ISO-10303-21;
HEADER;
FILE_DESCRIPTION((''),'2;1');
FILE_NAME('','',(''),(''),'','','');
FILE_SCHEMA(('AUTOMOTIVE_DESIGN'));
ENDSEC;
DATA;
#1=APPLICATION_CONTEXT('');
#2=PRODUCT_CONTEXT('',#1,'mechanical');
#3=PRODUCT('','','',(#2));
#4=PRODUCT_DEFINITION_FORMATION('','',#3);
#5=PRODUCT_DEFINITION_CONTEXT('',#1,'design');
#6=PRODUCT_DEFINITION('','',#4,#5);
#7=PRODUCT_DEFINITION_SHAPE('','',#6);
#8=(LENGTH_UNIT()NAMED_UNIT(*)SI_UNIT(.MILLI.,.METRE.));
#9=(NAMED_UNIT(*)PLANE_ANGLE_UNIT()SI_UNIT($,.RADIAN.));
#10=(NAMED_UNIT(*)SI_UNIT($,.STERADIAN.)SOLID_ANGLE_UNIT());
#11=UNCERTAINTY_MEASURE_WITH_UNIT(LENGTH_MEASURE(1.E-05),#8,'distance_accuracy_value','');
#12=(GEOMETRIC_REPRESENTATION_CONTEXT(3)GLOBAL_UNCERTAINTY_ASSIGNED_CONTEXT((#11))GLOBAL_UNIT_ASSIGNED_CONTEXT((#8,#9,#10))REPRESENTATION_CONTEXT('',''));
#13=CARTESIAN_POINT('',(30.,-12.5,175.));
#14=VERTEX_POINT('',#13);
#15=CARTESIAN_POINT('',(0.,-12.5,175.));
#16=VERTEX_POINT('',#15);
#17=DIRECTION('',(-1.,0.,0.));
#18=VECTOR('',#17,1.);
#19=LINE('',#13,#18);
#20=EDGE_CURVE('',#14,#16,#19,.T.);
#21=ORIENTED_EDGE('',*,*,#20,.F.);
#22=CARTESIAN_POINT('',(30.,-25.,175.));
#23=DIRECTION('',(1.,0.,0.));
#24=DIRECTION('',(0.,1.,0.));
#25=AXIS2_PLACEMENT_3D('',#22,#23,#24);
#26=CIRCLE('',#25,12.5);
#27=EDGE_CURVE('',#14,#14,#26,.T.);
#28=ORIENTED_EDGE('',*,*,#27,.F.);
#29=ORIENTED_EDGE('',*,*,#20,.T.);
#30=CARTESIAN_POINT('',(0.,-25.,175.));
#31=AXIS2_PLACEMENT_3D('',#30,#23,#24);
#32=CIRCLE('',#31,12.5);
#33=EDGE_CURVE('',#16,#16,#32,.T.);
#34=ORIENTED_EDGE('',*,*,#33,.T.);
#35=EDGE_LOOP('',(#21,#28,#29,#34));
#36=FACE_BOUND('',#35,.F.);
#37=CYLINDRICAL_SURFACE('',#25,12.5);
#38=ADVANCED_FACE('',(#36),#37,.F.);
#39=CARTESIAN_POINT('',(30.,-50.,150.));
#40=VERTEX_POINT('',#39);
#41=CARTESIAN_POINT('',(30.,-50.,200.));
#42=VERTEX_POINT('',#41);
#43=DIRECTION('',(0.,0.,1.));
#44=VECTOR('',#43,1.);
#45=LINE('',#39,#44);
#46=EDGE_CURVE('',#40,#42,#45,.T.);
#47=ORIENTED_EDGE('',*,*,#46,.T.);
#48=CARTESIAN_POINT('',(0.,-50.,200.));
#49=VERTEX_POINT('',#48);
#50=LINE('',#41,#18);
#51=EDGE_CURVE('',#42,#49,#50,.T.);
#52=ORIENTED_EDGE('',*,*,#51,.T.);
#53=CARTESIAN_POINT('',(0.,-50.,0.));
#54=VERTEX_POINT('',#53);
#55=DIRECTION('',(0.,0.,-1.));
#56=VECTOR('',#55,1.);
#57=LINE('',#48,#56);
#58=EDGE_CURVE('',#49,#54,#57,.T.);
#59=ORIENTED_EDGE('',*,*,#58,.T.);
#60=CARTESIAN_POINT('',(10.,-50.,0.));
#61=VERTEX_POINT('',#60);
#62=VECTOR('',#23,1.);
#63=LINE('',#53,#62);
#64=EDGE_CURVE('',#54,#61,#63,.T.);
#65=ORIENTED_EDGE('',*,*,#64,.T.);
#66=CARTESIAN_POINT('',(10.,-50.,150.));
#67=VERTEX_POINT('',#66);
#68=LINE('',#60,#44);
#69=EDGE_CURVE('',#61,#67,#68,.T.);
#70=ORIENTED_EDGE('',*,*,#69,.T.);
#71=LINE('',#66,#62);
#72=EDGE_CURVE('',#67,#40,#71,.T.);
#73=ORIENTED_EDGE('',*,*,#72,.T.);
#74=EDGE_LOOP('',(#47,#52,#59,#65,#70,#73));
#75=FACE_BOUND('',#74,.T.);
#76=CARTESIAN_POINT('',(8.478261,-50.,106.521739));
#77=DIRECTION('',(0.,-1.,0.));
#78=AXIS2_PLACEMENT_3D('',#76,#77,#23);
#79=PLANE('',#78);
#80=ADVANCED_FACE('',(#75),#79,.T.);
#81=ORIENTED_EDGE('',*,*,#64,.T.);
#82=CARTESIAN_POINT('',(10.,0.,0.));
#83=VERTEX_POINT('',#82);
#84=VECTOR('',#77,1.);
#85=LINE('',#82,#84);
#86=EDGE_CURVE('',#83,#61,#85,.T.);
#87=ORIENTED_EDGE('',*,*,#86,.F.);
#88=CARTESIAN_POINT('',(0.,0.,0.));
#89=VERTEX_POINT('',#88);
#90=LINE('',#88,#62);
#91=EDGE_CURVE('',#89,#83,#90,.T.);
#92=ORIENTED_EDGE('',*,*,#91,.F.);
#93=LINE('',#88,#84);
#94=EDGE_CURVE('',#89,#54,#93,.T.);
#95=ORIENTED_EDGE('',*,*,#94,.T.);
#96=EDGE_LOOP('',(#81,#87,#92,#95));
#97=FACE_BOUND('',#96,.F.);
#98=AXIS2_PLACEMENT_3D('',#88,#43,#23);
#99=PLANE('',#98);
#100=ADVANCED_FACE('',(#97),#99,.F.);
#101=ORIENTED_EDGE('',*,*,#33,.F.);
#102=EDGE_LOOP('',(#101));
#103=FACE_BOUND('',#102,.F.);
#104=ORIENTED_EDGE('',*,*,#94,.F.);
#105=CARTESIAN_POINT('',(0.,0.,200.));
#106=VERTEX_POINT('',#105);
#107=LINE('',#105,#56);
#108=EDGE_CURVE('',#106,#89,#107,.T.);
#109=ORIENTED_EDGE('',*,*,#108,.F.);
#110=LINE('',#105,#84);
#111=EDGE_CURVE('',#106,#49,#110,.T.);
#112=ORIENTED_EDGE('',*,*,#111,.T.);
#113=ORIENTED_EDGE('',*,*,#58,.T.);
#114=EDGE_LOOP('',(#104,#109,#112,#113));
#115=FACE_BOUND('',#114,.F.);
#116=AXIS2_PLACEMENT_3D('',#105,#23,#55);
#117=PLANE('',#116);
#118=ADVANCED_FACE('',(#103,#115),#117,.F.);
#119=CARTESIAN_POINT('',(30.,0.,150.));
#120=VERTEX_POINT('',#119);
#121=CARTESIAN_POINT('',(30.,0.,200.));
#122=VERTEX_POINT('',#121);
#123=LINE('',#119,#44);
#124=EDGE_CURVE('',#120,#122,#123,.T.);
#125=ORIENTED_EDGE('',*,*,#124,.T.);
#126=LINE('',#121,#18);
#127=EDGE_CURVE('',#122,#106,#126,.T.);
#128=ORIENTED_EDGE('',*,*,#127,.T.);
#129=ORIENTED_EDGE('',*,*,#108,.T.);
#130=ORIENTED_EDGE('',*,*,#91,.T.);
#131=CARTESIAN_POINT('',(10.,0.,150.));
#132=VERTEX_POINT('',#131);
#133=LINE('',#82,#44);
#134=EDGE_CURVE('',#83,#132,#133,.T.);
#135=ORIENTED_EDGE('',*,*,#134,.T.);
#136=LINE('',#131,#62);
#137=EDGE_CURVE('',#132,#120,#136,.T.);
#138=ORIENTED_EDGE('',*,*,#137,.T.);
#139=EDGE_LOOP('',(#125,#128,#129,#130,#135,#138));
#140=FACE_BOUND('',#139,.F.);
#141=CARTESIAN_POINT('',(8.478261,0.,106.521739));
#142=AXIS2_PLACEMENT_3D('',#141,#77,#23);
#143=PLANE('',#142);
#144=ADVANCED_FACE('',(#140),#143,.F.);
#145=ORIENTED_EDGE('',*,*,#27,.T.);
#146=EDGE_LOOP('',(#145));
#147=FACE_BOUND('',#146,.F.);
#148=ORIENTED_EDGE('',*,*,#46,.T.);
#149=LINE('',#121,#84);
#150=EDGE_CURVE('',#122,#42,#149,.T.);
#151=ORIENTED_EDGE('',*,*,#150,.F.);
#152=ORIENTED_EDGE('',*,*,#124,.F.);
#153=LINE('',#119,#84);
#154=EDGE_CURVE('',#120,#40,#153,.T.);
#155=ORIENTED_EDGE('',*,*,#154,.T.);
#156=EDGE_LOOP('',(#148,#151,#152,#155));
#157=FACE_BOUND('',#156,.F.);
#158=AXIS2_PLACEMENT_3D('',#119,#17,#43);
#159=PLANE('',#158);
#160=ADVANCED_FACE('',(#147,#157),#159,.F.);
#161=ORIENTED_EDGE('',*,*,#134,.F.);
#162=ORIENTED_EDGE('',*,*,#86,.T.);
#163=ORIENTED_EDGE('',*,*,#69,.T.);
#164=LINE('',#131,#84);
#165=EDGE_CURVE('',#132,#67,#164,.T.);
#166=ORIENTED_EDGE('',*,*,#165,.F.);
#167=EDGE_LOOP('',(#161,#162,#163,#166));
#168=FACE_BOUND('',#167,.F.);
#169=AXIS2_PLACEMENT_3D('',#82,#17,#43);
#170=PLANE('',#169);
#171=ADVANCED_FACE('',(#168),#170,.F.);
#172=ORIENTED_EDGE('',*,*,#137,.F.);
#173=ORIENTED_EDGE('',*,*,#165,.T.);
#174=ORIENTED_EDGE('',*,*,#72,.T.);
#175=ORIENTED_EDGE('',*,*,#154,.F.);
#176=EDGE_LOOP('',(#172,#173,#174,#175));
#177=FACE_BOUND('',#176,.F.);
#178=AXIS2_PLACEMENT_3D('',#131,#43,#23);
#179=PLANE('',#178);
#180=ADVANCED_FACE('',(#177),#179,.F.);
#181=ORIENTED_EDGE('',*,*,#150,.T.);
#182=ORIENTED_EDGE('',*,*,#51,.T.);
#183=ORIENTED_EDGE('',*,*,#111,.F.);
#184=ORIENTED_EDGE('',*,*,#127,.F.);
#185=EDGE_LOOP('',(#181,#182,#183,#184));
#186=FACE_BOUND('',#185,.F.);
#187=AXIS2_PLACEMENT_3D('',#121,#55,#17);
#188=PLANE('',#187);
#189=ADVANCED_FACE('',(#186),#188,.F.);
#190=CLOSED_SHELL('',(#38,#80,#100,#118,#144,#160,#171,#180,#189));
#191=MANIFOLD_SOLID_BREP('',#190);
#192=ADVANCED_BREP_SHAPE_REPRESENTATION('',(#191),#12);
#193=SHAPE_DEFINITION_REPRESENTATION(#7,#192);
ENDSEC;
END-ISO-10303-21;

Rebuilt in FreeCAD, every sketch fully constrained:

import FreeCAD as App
import Part
import Sketcher

V = App.Vector
Q = App.Units.Quantity

doc = App.newDocument("Part")
body = doc.addObject("PartDesign::Body", "Body")

# Sketch on XZ plane
sketch1 = doc.addObject("Sketcher::SketchObject", "Sketch")
body.addObject(sketch1)
sketch1.AttachmentSupport = (doc.XZ_Plane, [""])
sketch1.MapMode = "FlatFace"
sketch1.addGeometry([
    Part.LineSegment(V(0, 200, 0), V(0, 0, 0)),  # 0
    Part.LineSegment(V(0, 0, 0), V(10, 0, 0)),  # 1
    Part.LineSegment(V(10, 0, 0), V(10, 150, 0)),  # 2
    Part.LineSegment(V(10, 150, 0), V(30, 150, 0)),  # 3
    Part.LineSegment(V(30, 150, 0), V(30, 200, 0)),  # 4
    Part.LineSegment(V(30, 200, 0), V(0, 200, 0)),  # 5
], False)
sketch1.addConstraint([
    Sketcher.Constraint("Coincident", 0, 2, 1, 1),
    Sketcher.Constraint("Coincident", 1, 2, 2, 1),
    Sketcher.Constraint("Coincident", 2, 2, 3, 1),
    Sketcher.Constraint("Coincident", 3, 2, 4, 1),
    Sketcher.Constraint("Coincident", 4, 2, 5, 1),
    Sketcher.Constraint("Coincident", 5, 2, 0, 1),
    Sketcher.Constraint("Vertical", 0),
    Sketcher.Constraint("Horizontal", 1),
    Sketcher.Constraint("Vertical", 2),
    Sketcher.Constraint("Horizontal", 3),
    Sketcher.Constraint("Vertical", 4),
    Sketcher.Constraint("Horizontal", 5),
    Sketcher.Constraint("Coincident", 0, 2, -1, 1),
    Sketcher.Constraint("DistanceX", 1, 1, 1, 2, Q("10 mm")),
    Sketcher.Constraint("DistanceX", 3, 1, 3, 2, Q("20 mm")),
    Sketcher.Constraint("DistanceY", 0, 2, 0, 1, Q("200 mm")),
    Sketcher.Constraint("DistanceY", 2, 1, 2, 2, Q("150 mm")),
])
pad1 = doc.addObject("PartDesign::Pad", "Pad")
body.addObject(pad1)
pad1.Profile = sketch1
pad1.Length = 50

# Sketch on YZ plane
sketch2 = doc.addObject("Sketcher::SketchObject", "Sketch001")
body.addObject(sketch2)
sketch2.AttachmentSupport = (doc.YZ_Plane, [""])
sketch2.MapMode = "FlatFace"
sketch2.AttachmentOffset = App.Placement(V(0, 0, 30), App.Rotation())
sketch2.addGeometry(Part.Circle(V(-25, 175, 0), V(0, 0, 1), 12), False)
sketch2.addConstraint([
    Sketcher.Constraint("Diameter", 0, Q("25 mm")),
    Sketcher.Constraint("DistanceX", 0, 3, -1, 1, Q("25 mm")),
    Sketcher.Constraint("DistanceY", -1, 1, 0, 3, Q("175 mm")),
])
pocket1 = doc.addObject("PartDesign::Pocket", "Pocket")
body.addObject(pocket1)
pocket1.Profile = sketch2
pocket1.Length = 56

doc.recompute()
